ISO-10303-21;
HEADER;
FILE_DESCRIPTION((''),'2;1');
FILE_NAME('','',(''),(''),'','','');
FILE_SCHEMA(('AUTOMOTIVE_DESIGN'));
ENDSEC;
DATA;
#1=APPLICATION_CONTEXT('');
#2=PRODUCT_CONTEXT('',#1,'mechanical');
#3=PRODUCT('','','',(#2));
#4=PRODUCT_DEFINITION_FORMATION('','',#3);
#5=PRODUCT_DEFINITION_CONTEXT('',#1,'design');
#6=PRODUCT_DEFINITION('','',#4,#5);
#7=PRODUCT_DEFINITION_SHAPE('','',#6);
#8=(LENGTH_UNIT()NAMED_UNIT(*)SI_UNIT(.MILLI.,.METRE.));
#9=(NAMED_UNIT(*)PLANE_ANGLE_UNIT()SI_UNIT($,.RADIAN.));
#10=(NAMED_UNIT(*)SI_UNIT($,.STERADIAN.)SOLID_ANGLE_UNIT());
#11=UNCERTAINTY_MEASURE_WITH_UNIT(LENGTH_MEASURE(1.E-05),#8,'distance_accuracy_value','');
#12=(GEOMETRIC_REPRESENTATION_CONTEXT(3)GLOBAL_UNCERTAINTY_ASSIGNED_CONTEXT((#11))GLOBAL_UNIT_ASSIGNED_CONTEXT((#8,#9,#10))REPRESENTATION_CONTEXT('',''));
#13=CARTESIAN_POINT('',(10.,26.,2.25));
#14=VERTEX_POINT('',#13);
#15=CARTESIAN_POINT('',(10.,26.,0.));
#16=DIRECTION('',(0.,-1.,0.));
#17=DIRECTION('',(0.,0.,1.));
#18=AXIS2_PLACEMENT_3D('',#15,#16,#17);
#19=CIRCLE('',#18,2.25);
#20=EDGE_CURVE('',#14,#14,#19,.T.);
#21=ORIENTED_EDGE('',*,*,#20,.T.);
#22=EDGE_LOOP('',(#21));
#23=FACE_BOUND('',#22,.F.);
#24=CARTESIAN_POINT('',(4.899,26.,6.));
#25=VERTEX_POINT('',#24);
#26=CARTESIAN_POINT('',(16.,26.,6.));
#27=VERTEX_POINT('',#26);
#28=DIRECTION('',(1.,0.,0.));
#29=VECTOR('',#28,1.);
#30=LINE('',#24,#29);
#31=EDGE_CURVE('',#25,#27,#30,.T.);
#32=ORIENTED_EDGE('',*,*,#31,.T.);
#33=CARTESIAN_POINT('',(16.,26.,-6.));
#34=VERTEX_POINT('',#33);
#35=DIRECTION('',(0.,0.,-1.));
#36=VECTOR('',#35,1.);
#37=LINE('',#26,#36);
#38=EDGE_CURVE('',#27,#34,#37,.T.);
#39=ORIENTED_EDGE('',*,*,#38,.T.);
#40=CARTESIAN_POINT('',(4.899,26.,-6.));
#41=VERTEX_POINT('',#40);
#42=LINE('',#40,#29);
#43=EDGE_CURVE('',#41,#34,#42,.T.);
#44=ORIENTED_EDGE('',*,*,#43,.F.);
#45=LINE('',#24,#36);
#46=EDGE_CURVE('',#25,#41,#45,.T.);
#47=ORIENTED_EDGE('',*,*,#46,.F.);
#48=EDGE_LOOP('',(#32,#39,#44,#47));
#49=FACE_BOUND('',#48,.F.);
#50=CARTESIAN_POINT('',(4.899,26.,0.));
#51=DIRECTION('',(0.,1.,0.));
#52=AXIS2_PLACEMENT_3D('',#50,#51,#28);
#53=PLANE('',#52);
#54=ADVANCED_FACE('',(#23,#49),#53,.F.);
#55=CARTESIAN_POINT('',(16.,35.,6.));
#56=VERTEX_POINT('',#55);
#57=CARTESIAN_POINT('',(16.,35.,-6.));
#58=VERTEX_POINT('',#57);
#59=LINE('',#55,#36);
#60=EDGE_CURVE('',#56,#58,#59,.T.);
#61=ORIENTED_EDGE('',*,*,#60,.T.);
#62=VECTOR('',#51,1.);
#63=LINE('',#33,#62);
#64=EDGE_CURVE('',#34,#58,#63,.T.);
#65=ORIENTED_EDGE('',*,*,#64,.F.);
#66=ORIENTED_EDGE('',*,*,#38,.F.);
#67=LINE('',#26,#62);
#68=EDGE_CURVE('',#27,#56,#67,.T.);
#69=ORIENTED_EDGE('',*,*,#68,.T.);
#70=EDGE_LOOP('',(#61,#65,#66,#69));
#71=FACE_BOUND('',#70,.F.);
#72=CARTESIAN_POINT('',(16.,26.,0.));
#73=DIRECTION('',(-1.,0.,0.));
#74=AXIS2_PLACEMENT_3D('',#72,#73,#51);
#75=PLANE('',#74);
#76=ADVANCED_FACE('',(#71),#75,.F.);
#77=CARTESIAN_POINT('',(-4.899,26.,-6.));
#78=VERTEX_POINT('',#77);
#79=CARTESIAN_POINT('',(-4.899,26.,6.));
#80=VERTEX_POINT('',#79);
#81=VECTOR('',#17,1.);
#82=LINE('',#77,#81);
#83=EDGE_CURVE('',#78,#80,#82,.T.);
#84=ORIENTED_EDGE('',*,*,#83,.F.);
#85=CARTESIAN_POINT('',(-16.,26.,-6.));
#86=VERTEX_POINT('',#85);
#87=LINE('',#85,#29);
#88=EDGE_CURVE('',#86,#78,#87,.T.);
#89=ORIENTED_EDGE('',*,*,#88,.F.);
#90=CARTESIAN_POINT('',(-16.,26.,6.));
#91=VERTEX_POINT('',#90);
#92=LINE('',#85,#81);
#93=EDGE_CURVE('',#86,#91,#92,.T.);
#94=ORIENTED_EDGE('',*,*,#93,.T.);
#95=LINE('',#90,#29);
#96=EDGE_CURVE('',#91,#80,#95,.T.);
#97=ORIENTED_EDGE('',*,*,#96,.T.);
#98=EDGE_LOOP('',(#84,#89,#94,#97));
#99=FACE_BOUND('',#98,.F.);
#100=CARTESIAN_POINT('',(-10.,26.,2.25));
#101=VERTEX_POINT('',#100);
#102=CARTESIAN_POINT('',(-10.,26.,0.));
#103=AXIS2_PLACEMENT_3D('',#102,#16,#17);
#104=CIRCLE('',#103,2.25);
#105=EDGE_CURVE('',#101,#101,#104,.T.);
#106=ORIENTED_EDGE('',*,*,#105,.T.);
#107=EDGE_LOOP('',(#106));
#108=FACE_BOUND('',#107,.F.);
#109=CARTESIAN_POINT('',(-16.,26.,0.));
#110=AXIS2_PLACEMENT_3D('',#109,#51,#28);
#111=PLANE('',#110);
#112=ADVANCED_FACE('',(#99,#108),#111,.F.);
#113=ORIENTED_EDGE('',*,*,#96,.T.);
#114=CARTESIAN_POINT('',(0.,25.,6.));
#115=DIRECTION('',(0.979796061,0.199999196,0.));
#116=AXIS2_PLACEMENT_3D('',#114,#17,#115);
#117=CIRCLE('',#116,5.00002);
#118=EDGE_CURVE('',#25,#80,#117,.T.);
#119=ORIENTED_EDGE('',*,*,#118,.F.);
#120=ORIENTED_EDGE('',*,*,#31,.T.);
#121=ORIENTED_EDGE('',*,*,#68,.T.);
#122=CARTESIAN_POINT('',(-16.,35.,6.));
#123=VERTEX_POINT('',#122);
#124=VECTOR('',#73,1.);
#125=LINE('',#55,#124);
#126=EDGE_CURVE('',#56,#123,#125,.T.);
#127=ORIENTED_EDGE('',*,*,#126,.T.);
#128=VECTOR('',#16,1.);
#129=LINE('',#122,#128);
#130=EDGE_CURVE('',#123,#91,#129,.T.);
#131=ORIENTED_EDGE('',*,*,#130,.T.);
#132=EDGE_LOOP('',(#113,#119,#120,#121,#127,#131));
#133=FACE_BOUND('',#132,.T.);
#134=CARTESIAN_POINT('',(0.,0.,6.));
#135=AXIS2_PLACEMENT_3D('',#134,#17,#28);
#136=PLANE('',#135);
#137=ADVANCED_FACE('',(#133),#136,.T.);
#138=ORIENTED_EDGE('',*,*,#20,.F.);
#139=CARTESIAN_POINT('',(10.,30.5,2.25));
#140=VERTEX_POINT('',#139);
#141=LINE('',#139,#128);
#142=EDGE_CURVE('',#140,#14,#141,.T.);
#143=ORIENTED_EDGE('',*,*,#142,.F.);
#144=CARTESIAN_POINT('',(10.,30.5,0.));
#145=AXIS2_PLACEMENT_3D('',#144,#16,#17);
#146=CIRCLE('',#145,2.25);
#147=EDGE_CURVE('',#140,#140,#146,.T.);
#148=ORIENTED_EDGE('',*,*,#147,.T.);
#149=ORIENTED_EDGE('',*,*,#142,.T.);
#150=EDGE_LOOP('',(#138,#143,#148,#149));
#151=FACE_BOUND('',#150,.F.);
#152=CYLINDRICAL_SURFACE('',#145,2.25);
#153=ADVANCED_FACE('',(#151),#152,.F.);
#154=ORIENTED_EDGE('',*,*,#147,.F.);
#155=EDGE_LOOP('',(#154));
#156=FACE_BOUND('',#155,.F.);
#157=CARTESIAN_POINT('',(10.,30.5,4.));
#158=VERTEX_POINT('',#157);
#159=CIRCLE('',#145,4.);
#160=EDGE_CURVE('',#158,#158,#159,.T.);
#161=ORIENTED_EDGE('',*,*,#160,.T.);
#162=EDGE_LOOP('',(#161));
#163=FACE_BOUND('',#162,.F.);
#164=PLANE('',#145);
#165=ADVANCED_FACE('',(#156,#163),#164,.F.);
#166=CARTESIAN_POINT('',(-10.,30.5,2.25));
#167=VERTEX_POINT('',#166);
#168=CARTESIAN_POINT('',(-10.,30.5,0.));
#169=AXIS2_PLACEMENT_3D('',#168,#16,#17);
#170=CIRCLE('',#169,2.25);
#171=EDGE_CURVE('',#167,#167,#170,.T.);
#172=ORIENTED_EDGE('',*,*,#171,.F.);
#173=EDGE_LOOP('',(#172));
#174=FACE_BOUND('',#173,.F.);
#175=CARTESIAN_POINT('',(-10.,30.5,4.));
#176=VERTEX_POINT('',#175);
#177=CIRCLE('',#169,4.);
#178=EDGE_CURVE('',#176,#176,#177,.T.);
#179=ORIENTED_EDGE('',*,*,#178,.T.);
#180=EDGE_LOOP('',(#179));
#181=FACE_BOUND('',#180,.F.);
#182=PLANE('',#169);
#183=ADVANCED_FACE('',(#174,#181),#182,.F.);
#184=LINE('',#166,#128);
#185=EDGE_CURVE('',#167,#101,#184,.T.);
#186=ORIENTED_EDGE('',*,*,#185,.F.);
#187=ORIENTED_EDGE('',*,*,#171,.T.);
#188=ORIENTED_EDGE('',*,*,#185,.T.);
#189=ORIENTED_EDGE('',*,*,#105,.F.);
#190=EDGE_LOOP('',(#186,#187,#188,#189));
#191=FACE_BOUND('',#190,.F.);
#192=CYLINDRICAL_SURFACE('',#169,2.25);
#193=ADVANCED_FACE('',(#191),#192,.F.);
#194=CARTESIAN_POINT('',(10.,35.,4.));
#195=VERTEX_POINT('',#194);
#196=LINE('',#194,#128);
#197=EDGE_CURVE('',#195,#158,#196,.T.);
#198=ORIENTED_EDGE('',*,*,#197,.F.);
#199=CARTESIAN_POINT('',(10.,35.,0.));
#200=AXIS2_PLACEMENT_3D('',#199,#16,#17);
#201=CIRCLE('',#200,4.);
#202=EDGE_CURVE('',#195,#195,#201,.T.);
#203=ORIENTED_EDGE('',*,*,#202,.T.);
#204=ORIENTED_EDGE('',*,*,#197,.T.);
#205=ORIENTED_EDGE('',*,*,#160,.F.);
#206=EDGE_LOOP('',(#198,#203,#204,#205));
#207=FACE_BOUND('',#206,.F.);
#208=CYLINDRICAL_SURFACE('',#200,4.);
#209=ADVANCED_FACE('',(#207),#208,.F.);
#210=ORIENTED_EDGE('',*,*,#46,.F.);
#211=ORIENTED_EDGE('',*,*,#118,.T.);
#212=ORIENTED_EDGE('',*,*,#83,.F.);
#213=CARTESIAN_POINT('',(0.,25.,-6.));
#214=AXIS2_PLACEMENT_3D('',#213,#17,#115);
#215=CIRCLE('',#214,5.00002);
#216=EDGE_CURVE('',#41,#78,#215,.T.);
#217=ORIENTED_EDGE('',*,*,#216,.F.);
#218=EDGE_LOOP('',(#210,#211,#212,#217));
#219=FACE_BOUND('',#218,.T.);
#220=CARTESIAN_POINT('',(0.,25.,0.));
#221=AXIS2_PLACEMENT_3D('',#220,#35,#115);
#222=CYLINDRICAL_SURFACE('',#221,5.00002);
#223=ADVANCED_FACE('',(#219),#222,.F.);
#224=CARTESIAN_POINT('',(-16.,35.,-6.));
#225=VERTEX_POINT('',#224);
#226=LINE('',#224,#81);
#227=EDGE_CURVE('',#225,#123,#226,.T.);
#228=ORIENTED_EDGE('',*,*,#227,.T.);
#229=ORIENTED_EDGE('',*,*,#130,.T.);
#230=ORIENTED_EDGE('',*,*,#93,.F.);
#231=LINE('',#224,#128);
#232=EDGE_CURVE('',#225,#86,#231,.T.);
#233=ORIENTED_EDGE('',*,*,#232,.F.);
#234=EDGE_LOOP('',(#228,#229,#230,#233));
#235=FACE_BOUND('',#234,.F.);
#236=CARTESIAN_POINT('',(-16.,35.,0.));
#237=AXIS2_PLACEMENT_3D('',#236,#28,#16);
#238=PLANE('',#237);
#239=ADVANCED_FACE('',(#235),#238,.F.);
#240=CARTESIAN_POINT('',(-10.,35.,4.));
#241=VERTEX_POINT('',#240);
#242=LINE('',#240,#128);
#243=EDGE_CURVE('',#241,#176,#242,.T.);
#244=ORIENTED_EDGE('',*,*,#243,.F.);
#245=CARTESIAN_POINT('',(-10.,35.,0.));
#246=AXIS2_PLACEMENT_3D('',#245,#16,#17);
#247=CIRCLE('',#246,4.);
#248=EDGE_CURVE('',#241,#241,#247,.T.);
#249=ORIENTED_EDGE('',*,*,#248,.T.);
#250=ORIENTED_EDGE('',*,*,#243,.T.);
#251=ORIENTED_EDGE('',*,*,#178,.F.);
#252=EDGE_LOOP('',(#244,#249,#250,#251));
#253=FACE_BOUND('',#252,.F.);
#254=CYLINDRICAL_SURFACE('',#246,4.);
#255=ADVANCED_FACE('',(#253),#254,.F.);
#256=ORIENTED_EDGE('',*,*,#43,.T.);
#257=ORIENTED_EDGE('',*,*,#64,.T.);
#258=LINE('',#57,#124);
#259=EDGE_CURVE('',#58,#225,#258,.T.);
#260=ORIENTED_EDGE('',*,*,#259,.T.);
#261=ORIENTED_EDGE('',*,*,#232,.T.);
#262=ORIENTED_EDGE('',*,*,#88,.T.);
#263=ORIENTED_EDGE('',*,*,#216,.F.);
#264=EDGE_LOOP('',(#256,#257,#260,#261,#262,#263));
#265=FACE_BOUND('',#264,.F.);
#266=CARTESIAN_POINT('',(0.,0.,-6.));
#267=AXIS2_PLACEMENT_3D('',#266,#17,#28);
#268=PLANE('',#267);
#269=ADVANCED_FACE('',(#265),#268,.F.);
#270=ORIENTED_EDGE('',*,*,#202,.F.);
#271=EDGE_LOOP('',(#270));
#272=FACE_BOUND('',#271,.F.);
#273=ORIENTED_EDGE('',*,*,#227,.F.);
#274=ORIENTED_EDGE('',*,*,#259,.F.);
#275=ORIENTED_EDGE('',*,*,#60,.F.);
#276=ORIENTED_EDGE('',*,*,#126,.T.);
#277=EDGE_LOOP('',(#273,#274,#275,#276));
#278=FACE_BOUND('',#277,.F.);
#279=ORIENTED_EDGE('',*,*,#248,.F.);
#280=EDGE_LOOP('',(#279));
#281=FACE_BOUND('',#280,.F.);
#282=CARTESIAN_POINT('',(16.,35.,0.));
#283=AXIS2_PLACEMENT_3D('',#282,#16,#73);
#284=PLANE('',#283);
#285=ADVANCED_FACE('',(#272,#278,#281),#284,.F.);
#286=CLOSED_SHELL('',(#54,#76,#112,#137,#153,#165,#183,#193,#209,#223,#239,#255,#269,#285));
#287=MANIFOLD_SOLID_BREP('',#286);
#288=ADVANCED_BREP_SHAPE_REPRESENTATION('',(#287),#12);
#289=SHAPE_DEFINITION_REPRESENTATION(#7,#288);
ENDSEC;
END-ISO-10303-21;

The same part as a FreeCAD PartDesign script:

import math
import FreeCAD as App
import Part
import Sketcher

doc = App.newDocument("Part")
body = doc.addObject("PartDesign::Body", "Body")

# Sketch on XY plane
sketch1 = doc.addObject("Sketcher::SketchObject", "Sketch")
body.addObject(sketch1)
sketch1.AttachmentSupport = (doc.XY_Plane, [""])
sketch1.MapMode = "FlatFace"
sketch1.addGeometry(Part.LineSegment(App.Vector(16, 35, 0), App.Vector(-16, 35, 0)), False)
sketch1.addGeometry(Part.LineSegment(App.Vector(-16, 35, 0), App.Vector(-16, 26, 0)), False)
sketch1.addGeometry(Part.LineSegment(App.Vector(-16, 26, 0), App.Vector(-5, 26, 0)), False)
sketch1.addGeometry(Part.ArcOfCircle(Part.Circle(App.Vector(0, 25, 0), App.Vector(0, 0, 1), 5), math.radians(12), math.radians(168)), False)
sketch1.addGeometry(Part.LineSegment(App.Vector(5, 26, 0), App.Vector(16, 26, 0)), False)
sketch1.addGeometry(Part.LineSegment(App.Vector(16, 26, 0), App.Vector(16, 35, 0)), False)
sketch1.addConstraint(Sketcher.Constraint("Coincident", 0, 2, 1, 1))
sketch1.addConstraint(Sketcher.Constraint("Coincident", 1, 2, 2, 1))
sketch1.addConstraint(Sketcher.Constraint("Coincident", 2, 2, 3, 2))
sketch1.addConstraint(Sketcher.Constraint("Coincident", 3, 1, 4, 1))
sketch1.addConstraint(Sketcher.Constraint("Coincident", 4, 2, 5, 1))
sketch1.addConstraint(Sketcher.Constraint("Coincident", 5, 2, 0, 1))
sketch1.addConstraint(Sketcher.Constraint("Horizontal", 0))
sketch1.addConstraint(Sketcher.Constraint("Vertical", 1))
sketch1.addConstraint(Sketcher.Constraint("Horizontal", 2))
sketch1.addConstraint(Sketcher.Constraint("Horizontal", 4))
sketch1.addConstraint(Sketcher.Constraint("Vertical", 5))
sketch1.addConstraint(Sketcher.Constraint("Symmetric", 2, 2, 3, 1, -2))
sketch1.addConstraint(Sketcher.Constraint("Equal", 2, 4))
sketch1.addConstraint(Sketcher.Constraint("Radius", 3, 5.0))
sketch1.addConstraint(Sketcher.Constraint("DistanceX", 0, 2, 0, 1, 32.0))
sketch1.addConstraint(Sketcher.Constraint("DistanceY", 1, 2, 1, 1, 9.0))
sketch1.addConstraint(Sketcher.Constraint("DistanceY", -1, 1, 3, 3, 25.0))
sketch1.addConstraint(Sketcher.Constraint("DistanceY", -1, 1, 0, 2, 35.0))
pad1 = doc.addObject("PartDesign::Pad", "Pad")
body.addObject(pad1)
pad1.Profile = sketch1
pad1.Length = 12
pad1.Midplane = True

# Sketch on XZ plane
sketch2 = doc.addObject("Sketcher::SketchObject", "Sketch001")
body.addObject(sketch2)
sketch2.AttachmentSupport = (doc.XZ_Plane, [""])
sketch2.MapMode = "FlatFace"
sketch2.AttachmentOffset = App.Placement(App.Vector(0, 0, -35), App.Rotation())
sketch2.addGeometry(Part.Circle(App.Vector(10, 0, 0), App.Vector(0, 0, 1), 2.2), False)
sketch2.addConstraint(Sketcher.Constraint("PointOnObject", 0, 3, -1))
sketch2.addConstraint(Sketcher.Constraint("Diameter", 0, 4.5))
sketch2.addConstraint(Sketcher.Constraint("DistanceX", -1, 1, 0, 3, 10.0))
doc.recompute()
hole = doc.addObject("PartDesign::Hole", "Hole")
body.addObject(hole)
hole.Profile = sketch2
hole.ThreadType = "None"
hole.Diameter = 4.5
hole.DepthType = "Dimension"
hole.Depth = 9
hole.DrillPoint = "Flat"
hole.HoleCutType = "Counterbore"
hole.HoleCutDiameter = 8
hole.HoleCutDepth = 4.5
hole.Reversed = True

# Sketch on XZ plane
sketch3 = doc.addObject("Sketcher::SketchObject", "Sketch002")
body.addObject(sketch3)
sketch3.AttachmentSupport = (doc.XZ_Plane, [""])
sketch3.MapMode = "FlatFace"
sketch3.AttachmentOffset = App.Placement(App.Vector(0, 0, -35), App.Rotation())
sketch3.addGeometry(Part.Circle(App.Vector(-10, 0, 0), App.Vector(0, 0, 1), 2.2), False)
sketch3.addConstraint(Sketcher.Constraint("PointOnObject", 0, 3, -1))
sketch3.addConstraint(Sketcher.Constraint("Diameter", 0, 4.5))
sketch3.addConstraint(Sketcher.Constraint("DistanceX", 0, 3, -1, 1, 10.0))
doc.recompute()
hole2 = doc.addObject("PartDesign::Hole", "Hole001")
body.addObject(hole2)
hole2.Profile = sketch3
hole2.ThreadType = "None"
hole2.Diameter = 4.5
hole2.DepthType = "Dimension"
hole2.Depth = 9
hole2.DrillPoint = "Flat"
hole2.HoleCutType = "Counterbore"
hole2.HoleCutDiameter = 8
hole2.HoleCutDepth = 4.5
hole2.Reversed = True

doc.recompute()
